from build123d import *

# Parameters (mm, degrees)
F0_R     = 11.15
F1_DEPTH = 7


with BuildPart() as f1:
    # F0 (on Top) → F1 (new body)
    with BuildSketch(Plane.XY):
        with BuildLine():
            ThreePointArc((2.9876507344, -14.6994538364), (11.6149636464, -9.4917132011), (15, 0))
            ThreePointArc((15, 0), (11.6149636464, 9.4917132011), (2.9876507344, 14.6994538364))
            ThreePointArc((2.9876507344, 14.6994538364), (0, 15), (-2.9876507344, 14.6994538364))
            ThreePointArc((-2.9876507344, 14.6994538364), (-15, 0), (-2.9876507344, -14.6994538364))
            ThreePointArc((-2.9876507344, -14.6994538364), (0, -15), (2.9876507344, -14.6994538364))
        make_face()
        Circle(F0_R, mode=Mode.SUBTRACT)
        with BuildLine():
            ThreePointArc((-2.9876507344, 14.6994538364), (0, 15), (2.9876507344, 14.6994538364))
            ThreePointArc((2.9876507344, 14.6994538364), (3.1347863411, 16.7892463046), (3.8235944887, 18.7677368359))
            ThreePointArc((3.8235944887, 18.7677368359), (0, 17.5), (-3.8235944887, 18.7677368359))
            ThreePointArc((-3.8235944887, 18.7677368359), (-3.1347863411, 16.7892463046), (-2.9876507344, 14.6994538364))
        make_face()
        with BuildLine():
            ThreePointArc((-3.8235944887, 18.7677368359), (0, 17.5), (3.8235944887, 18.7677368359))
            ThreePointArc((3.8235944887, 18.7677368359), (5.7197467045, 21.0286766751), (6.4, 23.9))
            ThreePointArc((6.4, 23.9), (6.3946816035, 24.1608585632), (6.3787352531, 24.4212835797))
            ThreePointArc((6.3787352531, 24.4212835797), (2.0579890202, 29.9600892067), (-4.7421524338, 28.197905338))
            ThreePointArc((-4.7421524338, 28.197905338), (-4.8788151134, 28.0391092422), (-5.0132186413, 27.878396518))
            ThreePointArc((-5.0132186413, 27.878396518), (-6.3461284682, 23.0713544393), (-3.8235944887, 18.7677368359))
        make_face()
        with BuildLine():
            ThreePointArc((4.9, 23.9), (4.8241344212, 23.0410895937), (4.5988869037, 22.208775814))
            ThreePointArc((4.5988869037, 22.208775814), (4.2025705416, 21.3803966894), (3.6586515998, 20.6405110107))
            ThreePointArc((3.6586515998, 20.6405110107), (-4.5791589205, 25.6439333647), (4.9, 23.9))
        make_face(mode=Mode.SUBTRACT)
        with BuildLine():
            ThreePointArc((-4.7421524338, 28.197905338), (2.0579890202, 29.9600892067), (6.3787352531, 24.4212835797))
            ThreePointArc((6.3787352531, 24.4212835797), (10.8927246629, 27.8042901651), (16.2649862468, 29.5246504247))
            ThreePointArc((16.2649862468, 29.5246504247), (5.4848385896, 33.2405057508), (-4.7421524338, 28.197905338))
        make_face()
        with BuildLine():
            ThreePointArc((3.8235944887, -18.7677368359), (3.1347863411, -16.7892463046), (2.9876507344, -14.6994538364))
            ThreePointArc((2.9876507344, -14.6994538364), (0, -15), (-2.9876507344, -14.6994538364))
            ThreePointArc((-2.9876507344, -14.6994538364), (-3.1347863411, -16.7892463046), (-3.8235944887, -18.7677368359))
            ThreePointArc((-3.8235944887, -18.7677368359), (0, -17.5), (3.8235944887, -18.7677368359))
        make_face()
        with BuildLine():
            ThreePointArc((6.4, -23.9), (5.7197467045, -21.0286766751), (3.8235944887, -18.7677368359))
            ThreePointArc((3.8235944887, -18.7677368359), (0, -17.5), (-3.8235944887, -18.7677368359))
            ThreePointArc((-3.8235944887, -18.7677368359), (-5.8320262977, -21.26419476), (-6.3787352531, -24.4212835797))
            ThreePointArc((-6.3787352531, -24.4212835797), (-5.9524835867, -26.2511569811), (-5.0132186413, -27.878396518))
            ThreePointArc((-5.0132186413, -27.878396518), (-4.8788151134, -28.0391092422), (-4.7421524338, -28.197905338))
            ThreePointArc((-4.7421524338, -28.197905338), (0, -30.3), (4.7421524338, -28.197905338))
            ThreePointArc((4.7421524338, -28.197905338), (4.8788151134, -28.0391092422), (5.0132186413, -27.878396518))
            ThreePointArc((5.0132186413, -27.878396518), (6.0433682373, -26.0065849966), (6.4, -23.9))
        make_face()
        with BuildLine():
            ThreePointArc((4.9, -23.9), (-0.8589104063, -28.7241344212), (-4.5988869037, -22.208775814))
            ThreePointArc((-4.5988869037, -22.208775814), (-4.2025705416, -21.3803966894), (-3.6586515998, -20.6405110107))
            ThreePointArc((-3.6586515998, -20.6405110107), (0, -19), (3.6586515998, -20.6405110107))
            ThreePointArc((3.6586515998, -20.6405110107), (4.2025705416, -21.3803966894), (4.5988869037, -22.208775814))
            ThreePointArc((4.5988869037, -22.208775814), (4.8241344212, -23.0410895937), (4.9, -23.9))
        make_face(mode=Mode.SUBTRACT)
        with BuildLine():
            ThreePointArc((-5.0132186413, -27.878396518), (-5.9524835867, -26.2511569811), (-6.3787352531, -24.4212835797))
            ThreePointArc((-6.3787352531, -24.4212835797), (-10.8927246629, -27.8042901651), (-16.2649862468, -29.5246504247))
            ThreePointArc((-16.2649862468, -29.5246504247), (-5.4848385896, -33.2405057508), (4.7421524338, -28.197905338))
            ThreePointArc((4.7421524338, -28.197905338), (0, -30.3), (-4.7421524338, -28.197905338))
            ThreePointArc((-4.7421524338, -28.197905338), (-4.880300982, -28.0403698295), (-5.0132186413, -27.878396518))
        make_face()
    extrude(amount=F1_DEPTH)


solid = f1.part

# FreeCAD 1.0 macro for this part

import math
import FreeCAD as App
import Part
import Sketcher
from FreeCAD import Vector
Q = App.Units.Quantity

doc = App.newDocument("Part")
params = doc.addObject("Spreadsheet::Sheet", "Params")
for row, (alias, value) in enumerate([
    ("sketch1_radius", "15 mm"),
    ("sketch1_diameter", "22.3 mm"),
    ("sketch1_radius2", "6.4 mm"),
    ("sketch1_radius3", "4.9 mm"),
    ("pad1_length", "7 mm"),
], start=1):
    params.set(f"A{row}", alias)
    params.set(f"B{row}", "=" + value)
    params.setAlias(f"B{row}", alias)

body = doc.addObject("PartDesign::Body", "Body")

sketch1 = body.newObject("Sketcher::SketchObject", "Sketch")
sketch1.AttachmentSupport = (doc.getObject("XY_Plane"), [""])
sketch1.MapMode = "FlatFace"
sketch1.addGeometry([
    Part.ArcOfCircle(Part.Circle(Vector(0, 0, 0), Vector(0, 0, 1), 15), math.radians(-79), math.radians(0)),
    Part.ArcOfCircle(Part.Circle(Vector(0, 0, 0), Vector(0, 0, 1), 15), math.radians(0), math.radians(79)),
    Part.ArcOfCircle(Part.Circle(Vector(10.91, 15.19, 0), Vector(0, 0, 1), 7.94), math.radians(153), math.radians(184)),
    Part.ArcOfCircle(Part.Circle(Vector(0, 23.9, 0), Vector(0, 0, 1), 6.4), math.radians(-53), math.radians(0)),
    Part.ArcOfCircle(Part.Circle(Vector(0, 23.9, 0), Vector(0, 0, 1), 6.4), math.radians(0), math.radians(4.67)),
    Part.ArcOfCircle(Part.Circle(Vector(18.69, 12.69, 0), Vector(0, 0, 1), 17.01), math.radians(98), math.radians(136)),
    Part.ArcOfCircle(Part.Circle(Vector(6.42, 18.45, 0), Vector(0, 0, 1), 14.82), math.radians(48), math.radians(139)),
    Part.ArcOfCircle(Part.Circle(Vector(6.42, 18.45, 0), Vector(0, 0, 1), 14.82), math.radians(138.88), math.radians(140.5)),
    Part.ArcOfCircle(Part.Circle(Vector(0, 23.9, 0), Vector(0, 0, 1), 6.4), math.radians(142), math.radians(233)),
    Part.ArcOfCircle(Part.Circle(Vector(-10.91, 15.19, 0), Vector(0, 0, 1), 7.94), math.radians(-4), math.radians(27)),
    Part.ArcOfCircle(Part.Circle(Vector(0, 0, 0), Vector(0, 0, 1), 15), math.radians(101), math.radians(259)),
    Part.ArcOfCircle(Part.Circle(Vector(-10.91, -15.19, 0), Vector(0, 0, 1), 7.94), math.radians(-27), math.radians(4)),
    Part.ArcOfCircle(Part.Circle(Vector(0, -23.9, 0), Vector(0, 0, 1), 6.4), math.radians(127), math.radians(185)),
    Part.ArcOfCircle(Part.Circle(Vector(-18.69, -12.69, 0), Vector(0, 0, 1), 17.01), math.radians(-82), math.radians(-44)),
    Part.ArcOfCircle(Part.Circle(Vector(-6.42, -18.45, 0), Vector(0, 0, 1), 14.82), math.radians(-132), math.radians(-41)),
    Part.ArcOfCircle(Part.Circle(Vector(-6.42, -18.45, 0), Vector(0, 0, 1), 14.82), math.radians(-41.12), math.radians(-39.5)),
    Part.ArcOfCircle(Part.Circle(Vector(0, -23.9, 0), Vector(0, 0, 1), 6.4), math.radians(-38), math.radians(0)),
    Part.ArcOfCircle(Part.Circle(Vector(0, -23.9, 0), Vector(0, 0, 1), 6.4), math.radians(0), math.radians(53)),
    Part.ArcOfCircle(Part.Circle(Vector(10.91, -15.19, 0), Vector(0, 0, 1), 7.94), math.radians(176), math.radians(207)),
    Part.ArcOfCircle(Part.Circle(Vector(6.42, -18.45, 0), Vector(0, 0, 1), 14.82), math.radians(-140.5), math.radians(-138.88)),
    Part.ArcOfCircle(Part.Circle(Vector(0, -23.9, 0), Vector(0, 0, 1), 6.4), math.radians(-141.57), math.radians(-137.81)),
    Part.ArcOfCircle(Part.Circle(Vector(0, -23.9, 0), Vector(0, 0, 1), 4.9), math.radians(0), math.radians(20)),
    Part.ArcOfCircle(Part.Circle(Vector(0, -23.9, 0), Vector(0, 0, 1), 4.9), math.radians(160), math.radians(360)),
    Part.ArcOfCircle(Part.Circle(Vector(0, -23.9, 0), Vector(0, 0, 1), 4.9), math.radians(138), math.radians(160)),
    Part.ArcOfCircle(Part.Circle(Vector(0, -23.9, 0), Vector(0, 0, 1), 4.9), math.radians(42), math.radians(138)),
    Part.ArcOfCircle(Part.Circle(Vector(0, -23.9, 0), Vector(0, 0, 1), 4.9), math.radians(20), math.radians(42)),
    Part.Circle(Vector(0, 0, 0), Vector(0, 0, 1), 11.15),
    Part.ArcOfCircle(Part.Circle(Vector(0, 23.9, 0), Vector(0, 0, 1), 4.9), math.radians(0), math.radians(318)),
    Part.ArcOfCircle(Part.Circle(Vector(0, 23.9, 0), Vector(0, 0, 1), 4.9), math.radians(-20), math.radians(0)),
    Part.ArcOfCircle(Part.Circle(Vector(0, 23.9, 0), Vector(0, 0, 1), 4.9), math.radians(-42), math.radians(-20)),
], False)
sketch1.addConstraint([
    Sketcher.Constraint("Tangent", 0, 2, 1, 1),
    Sketcher.Constraint("Coincident", 1, 2, 2, 2),
    Sketcher.Constraint("Coincident", 2, 1, 3, 1),
    Sketcher.Constraint("Tangent", 3, 2, 4, 1),
    Sketcher.Constraint("Coincident", 4, 2, 5, 2),
    Sketcher.Constraint("Coincident", 5, 1, 6, 1),
    Sketcher.Constraint("Tangent", 6, 2, 7, 1),
    Sketcher.Constraint("Coincident", 7, 2, 8, 1),
    Sketcher.Constraint("Coincident", 8, 2, 9, 2),
    Sketcher.Constraint("Coincident", 9, 1, 10, 1),
    Sketcher.Constraint("Coincident", 10, 2, 11, 2),
    Sketcher.Constraint("Coincident", 11, 1, 12, 1),
    Sketcher.Constraint("Coincident", 12, 2, 13, 2),
    Sketcher.Constraint("Coincident", 13, 1, 14, 1),
    Sketcher.Constraint("Tangent", 14, 2, 15, 1),
    Sketcher.Constraint("Coincident", 15, 2, 16, 1),
    Sketcher.Constraint("Tangent", 16, 2, 17, 1),
    Sketcher.Constraint("Coincident", 17, 2, 18, 2),
    Sketcher.Constraint("Coincident", 18, 1, 0, 1),
    Sketcher.Constraint("Coincident", 19, 1, 20, 1),
    Sketcher.Constraint("Coincident", 20, 2, 19, 2),
    Sketcher.Constraint("Tangent", 21, 1, 22, 2),
    Sketcher.Constraint("Tangent", 22, 1, 23, 2),
    Sketcher.Constraint("Tangent", 23, 1, 24, 2),
    Sketcher.Constraint("Tangent", 24, 1, 25, 2),
    Sketcher.Constraint("Tangent", 25, 1, 21, 2),
    Sketcher.Constraint("Tangent", 27, 1, 28, 2),
    Sketcher.Constraint("Tangent", 28, 1, 29, 2),
    Sketcher.Constraint("Tangent", 29, 1, 27, 2),
    Sketcher.Constraint("Coincident", 0, 3, -1, 1),
    Sketcher.Constraint("Coincident", 10, 3, -1, 1),
    Sketcher.Constraint("Coincident", 26, 3, -1, 1),
    Sketcher.Constraint("Coincident", 8, 3, 3, 3),
    Sketcher.Constraint("Coincident", 16, 3, 12, 3),
    Sketcher.Constraint("Coincident", 20, 3, 12, 3),
    Sketcher.Constraint("Coincident", 21, 3, 12, 3),
    Sketcher.Constraint("Coincident", 23, 3, 12, 3),
    Sketcher.Constraint("Coincident", 27, 3, 3, 3),
    Sketcher.Constraint("Equal", 0, 1),
    Sketcher.Constraint("Equal", 3, 4),
    Sketcher.Constraint("Equal", 6, 7),
    Sketcher.Constraint("Equal", 4, 8),
    Sketcher.Constraint("Equal", 2, 9),
    Sketcher.Constraint("Equal", 1, 10),
    Sketcher.Constraint("Equal", 9, 11),
    Sketcher.Constraint("Equal", 8, 12),
    Sketcher.Constraint("Equal", 5, 13),
    Sketcher.Constraint("Equal", 7, 14),
    Sketcher.Constraint("Equal", 14, 15),
    Sketcher.Constraint("Equal", 12, 16),
    Sketcher.Constraint("Equal", 16, 17),
    Sketcher.Constraint("Equal", 11, 18),
    Sketcher.Constraint("Equal", 15, 19),
    Sketcher.Constraint("Equal", 17, 20),
    Sketcher.Constraint("Equal", 25, 27),
    Sketcher.Constraint("Symmetric", 2, 3, 11, 3, -1, 1),
    Sketcher.Constraint("Symmetric", 3, 3, 12, 3, -1, 1),
    Sketcher.Constraint("Symmetric", 5, 3, 13, 3, -1, 1),
    Sketcher.Constraint("Symmetric", 6, 3, 14, 3, -1, 1),
    Sketcher.Constraint("Symmetric", 9, 3, 18, 3, -1, 1),
    Sketcher.Constraint("Symmetric", 2, 3, 9, 3, -2),
    Sketcher.Constraint("Symmetric", 14, 3, 19, 3, -2),
    Sketcher.Constraint("Symmetric", 23, 1, 24, 1, -2),
    Sketcher.Constraint("PointOnObject", 0, 2, -1),
    Sketcher.Constraint("Horizontal", 29, 3, 3, 2),
    Sketcher.Constraint("Horizontal", 25, 3, 16, 2),
    Sketcher.Constraint("Horizontal", 14, 2, 20, 2),
    Sketcher.Constraint("Horizontal", 16, 2, 21, 1),
    Sketcher.Constraint("Horizontal", 22, 1, 25, 1),
    Sketcher.Constraint("Horizontal", 3, 2, 27, 1),
    Sketcher.Constraint("Vertical", 6, 2, 20, 2),
    Sketcher.Constraint("Vertical", 25, 1, 28, 1),
    Sketcher.Constraint("Vertical", 24, 1, 29, 1),
    Sketcher.Constraint("Radius", 0, Q("15 mm")),
    Sketcher.Constraint("Diameter", 26, Q("22.3 mm")),
    Sketcher.Constraint("Radius", 3, Q("6.4 mm")),
    Sketcher.Constraint("Radius", 21, Q("4.9 mm")),
    Sketcher.Constraint("DistanceY", -1, 1, 3, 3, Q("23.9 mm")),
    Sketcher.Constraint("Radius", 6, Q("14.815469 mm")),
    Sketcher.Constraint("Radius", 2, Q("7.936647 mm")),
    Sketcher.Constraint("Radius", 5, Q("17.006464 mm")),
    Sketcher.Constraint("DistanceX", 9, 1, 1, 2, Q("5.975301 mm")),
    Sketcher.Constraint("DistanceX", -1, 1, 2, 3, Q("10.909011 mm")),
    Sketcher.Constraint("DistanceY", -1, 1, 5, 1, Q("29.52465 mm")),
    Sketcher.Constraint("DistanceX", 7, 2, -1, 1, Q("5.013219 mm")),
    Sketcher.Constraint("DistanceX", 23, 1, -1, 1, Q("3.658652 mm")),
    Sketcher.Constraint("DistanceX", 6, 3, 5, 3, Q("12.274891 mm")),
    Sketcher.Constraint("DistanceY", 7, 3, 2, 1, Q("0.31324 mm")),
    Sketcher.Constraint("DistanceX", 12, 2, 22, 1, Q("1.779848 mm")),
])
sketch1.setExpression("Constraints[73]", "Params.sketch1_radius")
sketch1.setExpression("Constraints[74]", "Params.sketch1_diameter")
sketch1.setExpression("Constraints[75]", "Params.sketch1_radius2")
sketch1.setExpression("Constraints[76]", "Params.sketch1_radius3")
pad1 = body.newObject("PartDesign::Pad", "Pad")
pad1.Profile = sketch1
pad1.setExpression("Length", "Params.pad1_length")

doc.recompute()
